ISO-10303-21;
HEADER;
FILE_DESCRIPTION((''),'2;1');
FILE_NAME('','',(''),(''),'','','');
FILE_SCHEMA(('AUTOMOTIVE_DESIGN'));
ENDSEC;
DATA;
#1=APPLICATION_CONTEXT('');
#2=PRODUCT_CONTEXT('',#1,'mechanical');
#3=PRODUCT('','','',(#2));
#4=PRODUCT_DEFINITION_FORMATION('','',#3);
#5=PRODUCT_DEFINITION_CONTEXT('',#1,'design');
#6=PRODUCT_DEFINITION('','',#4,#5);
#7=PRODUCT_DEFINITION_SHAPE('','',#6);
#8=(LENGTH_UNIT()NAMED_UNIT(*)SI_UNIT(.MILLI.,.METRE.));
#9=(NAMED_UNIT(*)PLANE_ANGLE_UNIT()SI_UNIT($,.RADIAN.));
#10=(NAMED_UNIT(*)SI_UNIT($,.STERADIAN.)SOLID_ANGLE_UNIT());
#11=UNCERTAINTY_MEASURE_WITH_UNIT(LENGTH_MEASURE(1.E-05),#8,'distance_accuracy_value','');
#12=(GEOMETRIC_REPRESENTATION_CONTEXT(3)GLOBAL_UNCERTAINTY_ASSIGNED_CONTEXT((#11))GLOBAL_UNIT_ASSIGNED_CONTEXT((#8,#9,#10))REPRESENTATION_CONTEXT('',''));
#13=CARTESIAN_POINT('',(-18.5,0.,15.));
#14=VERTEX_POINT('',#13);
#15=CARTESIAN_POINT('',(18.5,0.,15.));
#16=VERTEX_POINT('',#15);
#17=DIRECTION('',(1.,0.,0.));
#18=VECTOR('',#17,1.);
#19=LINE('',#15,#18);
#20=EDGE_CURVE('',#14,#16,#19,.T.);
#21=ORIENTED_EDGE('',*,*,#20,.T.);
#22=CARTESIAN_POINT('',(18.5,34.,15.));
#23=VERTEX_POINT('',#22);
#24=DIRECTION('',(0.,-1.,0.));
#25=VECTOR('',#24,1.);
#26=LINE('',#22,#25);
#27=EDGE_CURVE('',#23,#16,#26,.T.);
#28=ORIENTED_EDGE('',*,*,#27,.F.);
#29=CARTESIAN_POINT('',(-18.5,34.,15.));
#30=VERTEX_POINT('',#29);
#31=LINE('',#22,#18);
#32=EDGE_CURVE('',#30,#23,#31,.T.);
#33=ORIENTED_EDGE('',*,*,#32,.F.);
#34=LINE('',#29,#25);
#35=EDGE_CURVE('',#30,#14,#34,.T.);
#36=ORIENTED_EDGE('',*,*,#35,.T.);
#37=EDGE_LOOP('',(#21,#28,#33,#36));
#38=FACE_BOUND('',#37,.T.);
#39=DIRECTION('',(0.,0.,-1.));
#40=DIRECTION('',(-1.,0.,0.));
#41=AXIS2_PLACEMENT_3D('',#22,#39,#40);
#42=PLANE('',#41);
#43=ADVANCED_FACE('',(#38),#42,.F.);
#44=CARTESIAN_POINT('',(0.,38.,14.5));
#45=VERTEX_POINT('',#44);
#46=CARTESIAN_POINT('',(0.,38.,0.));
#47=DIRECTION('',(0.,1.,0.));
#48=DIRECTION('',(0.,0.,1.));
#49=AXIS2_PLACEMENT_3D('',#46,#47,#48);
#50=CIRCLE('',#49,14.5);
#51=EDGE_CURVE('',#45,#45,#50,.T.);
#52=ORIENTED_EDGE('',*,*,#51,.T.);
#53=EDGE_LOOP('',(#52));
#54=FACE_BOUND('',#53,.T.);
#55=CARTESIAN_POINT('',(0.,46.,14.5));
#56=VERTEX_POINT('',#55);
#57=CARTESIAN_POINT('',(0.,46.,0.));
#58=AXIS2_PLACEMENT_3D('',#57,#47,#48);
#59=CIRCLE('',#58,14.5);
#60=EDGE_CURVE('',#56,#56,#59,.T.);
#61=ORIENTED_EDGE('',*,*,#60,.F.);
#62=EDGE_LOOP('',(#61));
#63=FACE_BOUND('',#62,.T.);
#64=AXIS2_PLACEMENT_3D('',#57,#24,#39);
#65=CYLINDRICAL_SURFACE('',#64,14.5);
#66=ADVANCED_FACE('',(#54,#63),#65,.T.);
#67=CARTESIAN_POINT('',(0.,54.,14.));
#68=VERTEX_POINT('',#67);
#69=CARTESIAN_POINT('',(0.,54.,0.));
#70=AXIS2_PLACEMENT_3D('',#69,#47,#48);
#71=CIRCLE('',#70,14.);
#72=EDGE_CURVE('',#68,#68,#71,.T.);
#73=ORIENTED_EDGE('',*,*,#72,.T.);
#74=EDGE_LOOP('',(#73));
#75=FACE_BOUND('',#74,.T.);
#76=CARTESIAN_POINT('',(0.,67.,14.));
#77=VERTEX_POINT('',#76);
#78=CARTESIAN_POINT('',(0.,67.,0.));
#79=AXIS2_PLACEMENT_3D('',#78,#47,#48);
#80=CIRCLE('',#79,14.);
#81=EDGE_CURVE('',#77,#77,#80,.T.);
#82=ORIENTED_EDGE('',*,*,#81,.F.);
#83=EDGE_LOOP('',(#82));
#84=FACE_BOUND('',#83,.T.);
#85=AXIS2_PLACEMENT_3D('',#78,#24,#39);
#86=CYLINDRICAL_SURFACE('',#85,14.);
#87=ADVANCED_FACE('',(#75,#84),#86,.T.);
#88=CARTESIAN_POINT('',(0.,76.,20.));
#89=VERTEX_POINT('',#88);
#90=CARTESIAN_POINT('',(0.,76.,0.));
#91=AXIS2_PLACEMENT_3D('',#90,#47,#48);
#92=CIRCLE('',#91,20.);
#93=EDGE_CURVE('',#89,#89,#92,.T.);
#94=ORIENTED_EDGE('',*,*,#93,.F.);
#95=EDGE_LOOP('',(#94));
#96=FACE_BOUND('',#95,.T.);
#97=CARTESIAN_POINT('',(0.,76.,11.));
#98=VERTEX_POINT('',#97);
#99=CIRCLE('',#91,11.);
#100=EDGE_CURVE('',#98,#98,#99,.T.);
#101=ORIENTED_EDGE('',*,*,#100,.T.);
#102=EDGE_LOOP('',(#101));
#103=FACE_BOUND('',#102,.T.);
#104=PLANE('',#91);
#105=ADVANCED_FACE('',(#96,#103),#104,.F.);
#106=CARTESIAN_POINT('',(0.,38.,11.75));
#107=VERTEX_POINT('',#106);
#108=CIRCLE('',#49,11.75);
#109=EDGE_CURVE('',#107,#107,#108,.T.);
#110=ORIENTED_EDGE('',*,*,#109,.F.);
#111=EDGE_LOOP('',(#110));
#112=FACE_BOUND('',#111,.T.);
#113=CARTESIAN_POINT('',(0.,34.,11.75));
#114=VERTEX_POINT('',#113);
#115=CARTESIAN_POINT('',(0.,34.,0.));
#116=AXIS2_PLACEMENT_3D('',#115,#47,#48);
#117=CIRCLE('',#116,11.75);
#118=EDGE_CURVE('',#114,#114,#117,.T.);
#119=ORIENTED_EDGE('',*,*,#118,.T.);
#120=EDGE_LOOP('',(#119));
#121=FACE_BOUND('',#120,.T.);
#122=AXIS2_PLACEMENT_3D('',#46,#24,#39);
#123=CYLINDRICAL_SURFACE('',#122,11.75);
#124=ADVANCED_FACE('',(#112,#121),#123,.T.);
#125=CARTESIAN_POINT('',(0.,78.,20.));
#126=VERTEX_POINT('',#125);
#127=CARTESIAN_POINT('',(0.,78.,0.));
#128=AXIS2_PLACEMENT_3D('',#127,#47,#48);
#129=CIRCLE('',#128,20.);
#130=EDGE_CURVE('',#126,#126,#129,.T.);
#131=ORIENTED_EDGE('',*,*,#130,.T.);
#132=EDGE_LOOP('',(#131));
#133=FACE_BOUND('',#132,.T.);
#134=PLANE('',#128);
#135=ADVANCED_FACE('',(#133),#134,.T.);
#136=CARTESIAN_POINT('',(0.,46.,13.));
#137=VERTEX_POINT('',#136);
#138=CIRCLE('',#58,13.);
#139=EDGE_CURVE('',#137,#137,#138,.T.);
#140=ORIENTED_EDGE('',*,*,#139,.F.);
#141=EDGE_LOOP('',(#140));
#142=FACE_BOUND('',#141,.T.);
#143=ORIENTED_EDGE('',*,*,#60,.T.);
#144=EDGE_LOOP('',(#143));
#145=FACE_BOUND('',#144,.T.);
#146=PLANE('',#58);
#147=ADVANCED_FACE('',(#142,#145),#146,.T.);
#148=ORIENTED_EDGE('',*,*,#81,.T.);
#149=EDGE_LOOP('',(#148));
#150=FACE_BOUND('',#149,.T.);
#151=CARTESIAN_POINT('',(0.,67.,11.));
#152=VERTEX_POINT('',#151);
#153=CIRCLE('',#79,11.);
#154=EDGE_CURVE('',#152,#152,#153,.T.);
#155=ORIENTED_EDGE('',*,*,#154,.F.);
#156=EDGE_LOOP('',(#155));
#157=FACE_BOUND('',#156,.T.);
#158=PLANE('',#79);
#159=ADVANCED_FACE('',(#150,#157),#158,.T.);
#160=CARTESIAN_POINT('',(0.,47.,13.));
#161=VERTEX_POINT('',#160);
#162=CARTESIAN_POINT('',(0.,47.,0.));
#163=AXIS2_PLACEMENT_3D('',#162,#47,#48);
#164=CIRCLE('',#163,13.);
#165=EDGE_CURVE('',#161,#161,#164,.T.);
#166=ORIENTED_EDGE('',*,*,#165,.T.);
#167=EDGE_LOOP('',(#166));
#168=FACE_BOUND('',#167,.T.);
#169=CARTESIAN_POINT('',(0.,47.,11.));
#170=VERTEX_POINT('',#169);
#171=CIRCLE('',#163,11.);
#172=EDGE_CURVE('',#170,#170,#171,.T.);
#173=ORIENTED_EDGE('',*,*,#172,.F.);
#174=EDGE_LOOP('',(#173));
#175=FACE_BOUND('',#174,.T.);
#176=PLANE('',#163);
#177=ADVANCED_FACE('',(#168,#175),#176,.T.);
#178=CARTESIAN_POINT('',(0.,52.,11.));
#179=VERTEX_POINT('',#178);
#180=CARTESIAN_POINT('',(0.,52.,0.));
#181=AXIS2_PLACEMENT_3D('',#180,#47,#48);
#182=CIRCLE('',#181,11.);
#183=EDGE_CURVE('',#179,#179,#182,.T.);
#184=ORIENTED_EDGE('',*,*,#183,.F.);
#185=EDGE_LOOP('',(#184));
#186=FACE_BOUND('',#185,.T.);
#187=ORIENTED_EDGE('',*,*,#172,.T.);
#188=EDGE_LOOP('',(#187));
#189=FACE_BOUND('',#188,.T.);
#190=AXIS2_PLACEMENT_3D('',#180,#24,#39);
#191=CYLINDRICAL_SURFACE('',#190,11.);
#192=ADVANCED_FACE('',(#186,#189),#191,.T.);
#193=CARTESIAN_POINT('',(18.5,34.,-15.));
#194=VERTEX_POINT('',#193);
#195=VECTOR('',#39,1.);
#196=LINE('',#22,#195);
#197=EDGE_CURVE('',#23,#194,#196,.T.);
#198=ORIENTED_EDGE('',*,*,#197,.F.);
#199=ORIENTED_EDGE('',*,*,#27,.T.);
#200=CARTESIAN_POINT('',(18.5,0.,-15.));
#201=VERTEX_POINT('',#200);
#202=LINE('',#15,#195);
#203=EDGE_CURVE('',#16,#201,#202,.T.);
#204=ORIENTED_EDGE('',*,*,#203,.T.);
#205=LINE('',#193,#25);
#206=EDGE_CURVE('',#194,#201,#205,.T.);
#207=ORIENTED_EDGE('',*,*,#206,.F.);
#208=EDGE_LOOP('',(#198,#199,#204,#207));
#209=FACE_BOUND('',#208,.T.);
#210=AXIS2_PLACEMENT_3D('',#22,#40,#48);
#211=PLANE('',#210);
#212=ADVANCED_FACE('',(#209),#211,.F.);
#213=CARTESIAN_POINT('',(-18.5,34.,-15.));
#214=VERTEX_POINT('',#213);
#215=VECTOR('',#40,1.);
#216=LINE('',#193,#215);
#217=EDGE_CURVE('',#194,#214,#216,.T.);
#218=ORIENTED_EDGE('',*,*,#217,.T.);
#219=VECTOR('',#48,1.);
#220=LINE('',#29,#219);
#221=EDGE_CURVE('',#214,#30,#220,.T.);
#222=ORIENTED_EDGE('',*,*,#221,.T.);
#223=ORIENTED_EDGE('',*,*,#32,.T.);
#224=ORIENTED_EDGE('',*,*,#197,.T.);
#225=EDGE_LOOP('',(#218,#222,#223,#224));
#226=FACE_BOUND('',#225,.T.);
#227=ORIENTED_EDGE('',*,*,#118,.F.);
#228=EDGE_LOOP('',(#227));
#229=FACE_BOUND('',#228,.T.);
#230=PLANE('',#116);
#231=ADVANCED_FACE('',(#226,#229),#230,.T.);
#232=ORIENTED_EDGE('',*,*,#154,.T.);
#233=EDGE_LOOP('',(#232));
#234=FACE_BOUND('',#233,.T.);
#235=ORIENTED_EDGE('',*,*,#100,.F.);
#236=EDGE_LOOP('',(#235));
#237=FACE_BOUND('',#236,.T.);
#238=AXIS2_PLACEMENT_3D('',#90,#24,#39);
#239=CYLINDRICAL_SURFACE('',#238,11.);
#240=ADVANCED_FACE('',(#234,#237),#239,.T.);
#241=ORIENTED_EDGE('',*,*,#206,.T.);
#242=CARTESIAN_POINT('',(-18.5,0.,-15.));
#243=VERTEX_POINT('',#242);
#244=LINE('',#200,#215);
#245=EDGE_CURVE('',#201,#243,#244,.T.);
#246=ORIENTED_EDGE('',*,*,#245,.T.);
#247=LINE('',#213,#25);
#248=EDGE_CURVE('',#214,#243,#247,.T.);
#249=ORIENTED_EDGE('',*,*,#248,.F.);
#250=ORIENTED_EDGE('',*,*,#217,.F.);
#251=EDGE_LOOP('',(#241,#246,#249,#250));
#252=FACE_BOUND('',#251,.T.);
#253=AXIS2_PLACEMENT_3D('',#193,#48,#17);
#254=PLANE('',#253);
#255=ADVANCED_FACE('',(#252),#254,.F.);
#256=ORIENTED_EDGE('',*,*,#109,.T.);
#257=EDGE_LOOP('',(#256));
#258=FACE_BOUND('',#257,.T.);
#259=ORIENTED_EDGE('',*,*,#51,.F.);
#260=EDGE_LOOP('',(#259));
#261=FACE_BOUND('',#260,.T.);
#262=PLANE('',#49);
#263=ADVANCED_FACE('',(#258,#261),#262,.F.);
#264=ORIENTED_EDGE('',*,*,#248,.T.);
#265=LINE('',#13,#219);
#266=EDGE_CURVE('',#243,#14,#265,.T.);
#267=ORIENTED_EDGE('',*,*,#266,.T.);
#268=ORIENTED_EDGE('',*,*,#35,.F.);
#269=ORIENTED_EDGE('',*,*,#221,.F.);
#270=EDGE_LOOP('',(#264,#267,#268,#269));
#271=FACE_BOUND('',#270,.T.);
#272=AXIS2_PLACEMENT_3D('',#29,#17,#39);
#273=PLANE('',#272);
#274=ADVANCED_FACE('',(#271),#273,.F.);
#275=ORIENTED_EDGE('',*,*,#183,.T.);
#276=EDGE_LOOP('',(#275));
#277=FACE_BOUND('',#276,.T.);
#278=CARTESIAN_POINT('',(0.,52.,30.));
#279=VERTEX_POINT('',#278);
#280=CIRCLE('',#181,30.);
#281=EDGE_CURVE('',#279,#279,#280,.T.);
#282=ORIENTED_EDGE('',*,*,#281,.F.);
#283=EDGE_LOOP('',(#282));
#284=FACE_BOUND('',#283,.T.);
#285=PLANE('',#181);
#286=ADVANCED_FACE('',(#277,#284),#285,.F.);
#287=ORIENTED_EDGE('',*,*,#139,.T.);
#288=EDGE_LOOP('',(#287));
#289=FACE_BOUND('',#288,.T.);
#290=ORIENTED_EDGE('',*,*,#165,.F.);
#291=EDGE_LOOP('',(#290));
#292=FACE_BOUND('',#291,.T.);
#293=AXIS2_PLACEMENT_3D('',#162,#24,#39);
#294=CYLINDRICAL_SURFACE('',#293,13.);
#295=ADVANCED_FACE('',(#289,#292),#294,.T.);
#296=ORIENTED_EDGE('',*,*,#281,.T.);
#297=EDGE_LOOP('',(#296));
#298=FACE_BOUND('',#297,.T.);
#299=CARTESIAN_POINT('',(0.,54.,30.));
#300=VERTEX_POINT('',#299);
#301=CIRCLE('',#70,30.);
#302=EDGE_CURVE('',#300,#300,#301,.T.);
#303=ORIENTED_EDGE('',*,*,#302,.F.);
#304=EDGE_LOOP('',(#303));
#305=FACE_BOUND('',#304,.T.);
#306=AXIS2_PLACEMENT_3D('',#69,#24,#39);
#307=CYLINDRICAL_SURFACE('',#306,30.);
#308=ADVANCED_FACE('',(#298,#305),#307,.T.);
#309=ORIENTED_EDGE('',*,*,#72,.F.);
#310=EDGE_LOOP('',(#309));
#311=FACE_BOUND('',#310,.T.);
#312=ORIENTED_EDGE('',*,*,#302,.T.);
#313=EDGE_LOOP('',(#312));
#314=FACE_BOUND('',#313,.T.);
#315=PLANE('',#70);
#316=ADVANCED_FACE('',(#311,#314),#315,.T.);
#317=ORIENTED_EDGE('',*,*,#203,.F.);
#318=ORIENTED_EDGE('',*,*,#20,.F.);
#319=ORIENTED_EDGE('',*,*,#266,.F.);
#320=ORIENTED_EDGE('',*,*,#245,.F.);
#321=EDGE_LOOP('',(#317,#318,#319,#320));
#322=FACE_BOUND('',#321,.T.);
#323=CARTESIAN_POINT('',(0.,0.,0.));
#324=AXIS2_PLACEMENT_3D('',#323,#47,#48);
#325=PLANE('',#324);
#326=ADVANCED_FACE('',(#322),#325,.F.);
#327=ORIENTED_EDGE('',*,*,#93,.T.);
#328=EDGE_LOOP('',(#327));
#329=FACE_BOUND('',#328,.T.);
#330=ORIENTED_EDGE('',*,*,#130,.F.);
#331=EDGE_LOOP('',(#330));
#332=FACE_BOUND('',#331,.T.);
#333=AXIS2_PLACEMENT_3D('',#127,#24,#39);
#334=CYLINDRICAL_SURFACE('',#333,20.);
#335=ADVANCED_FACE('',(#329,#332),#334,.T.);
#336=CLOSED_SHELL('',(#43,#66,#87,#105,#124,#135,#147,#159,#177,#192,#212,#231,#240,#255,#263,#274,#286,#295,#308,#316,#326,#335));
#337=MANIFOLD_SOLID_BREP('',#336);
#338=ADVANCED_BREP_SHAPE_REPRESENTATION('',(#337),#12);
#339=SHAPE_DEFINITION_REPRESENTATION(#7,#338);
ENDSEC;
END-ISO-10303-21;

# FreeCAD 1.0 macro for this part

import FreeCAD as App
import Part
import Sketcher
from FreeCAD import Vector

doc = App.newDocument("Part")
params = doc.addObject("Spreadsheet::Sheet", "Params")
for row, (alias, value) in enumerate([
    ("sketch1_width", "37 mm"),
    ("sketch1_height", "30 mm"),
    ("pad1_length", "34 mm"),
    ("sketch2_diameter", "23.5 mm"),
    ("pad2_length", "4 mm"),
    ("sketch3_diameter", "29 mm"),
    ("pad3_length", "8 mm"),
    ("sketch4_diameter", "26 mm"),
    ("pad4_length", "1 mm"),
    ("sketch5_diameter", "22 mm"),
    ("pad5_length", "5 mm"),
    ("sketch6_diameter", "60 mm"),
    ("pad6_length", "2 mm"),
    ("sketch7_diameter", "28 mm"),
    ("pad7_length", "13 mm"),
    ("sketch8_diameter", "22 mm"),
    ("pad8_length", "9 mm"),
    ("sketch9_diameter", "40 mm"),
    ("pad9_length", "2 mm"),
], start=1):
    params.set(f"A{row}", alias)
    params.set(f"B{row}", "=" + value)
    params.setAlias(f"B{row}", alias)

body = doc.addObject("PartDesign::Body", "Body")

# Sketch on XZ plane
sketch1 = body.newObject("Sketcher::SketchObject", "Sketch")
sketch1.AttachmentSupport = (doc.getObject("XZ_Plane"), [""])
sketch1.MapMode = "FlatFace"
sketch1.addGeometry([
    Part.LineSegment(Vector(-18, -15, 0), Vector(-18, 15, 0)),
    Part.LineSegment(Vector(-18, 15, 0), Vector(18, 15, 0)),
    Part.LineSegment(Vector(18, 15, 0), Vector(18, -15, 0)),
    Part.LineSegment(Vector(18, -15, 0), Vector(-18, -15, 0)),
], False)
sketch1.addConstraint([
    Sketcher.Constraint("Coincident", 0, 2, 1, 1),
    Sketcher.Constraint("Coincident", 1, 2, 2, 1),
    Sketcher.Constraint("Coincident", 2, 2, 3, 1),
    Sketcher.Constraint("Coincident", 3, 2, 0, 1),
    Sketcher.Constraint("Vertical", 0),
    Sketcher.Constraint("Horizontal", 1),
    Sketcher.Constraint("Vertical", 2),
    Sketcher.Constraint("Horizontal", 3),
    Sketcher.Constraint("Symmetric", 0, 2, 2, 2, -1, 1),
    Sketcher.Constraint("DistanceX", 1, 1, 1, 2, 37.0),
    Sketcher.Constraint("DistanceY", 0, 1, 0, 2, 30.0),
])
sketch1.setExpression("Constraints[9]", "Params.sketch1_width")
sketch1.setExpression("Constraints[10]", "Params.sketch1_height")
pad1 = body.newObject("PartDesign::Pad", "Pad")
pad1.Profile = sketch1
pad1.setExpression("Length", "Params.pad1_length")
pad1.Reversed = True

# Sketch on XZ plane
sketch2 = body.newObject("Sketcher::SketchObject", "Sketch001")
sketch2.AttachmentSupport = (doc.getObject("XZ_Plane"), [""])
sketch2.MapMode = "FlatFace"
sketch2.AttachmentOffset = App.Placement(Vector(0, 0, -34), App.Rotation())
sketch2.addGeometry(Part.Circle(Vector(0, 0, 0), Vector(0, 0, 1), 12), False)
sketch2.addConstraint([
    Sketcher.Constraint("Coincident", 0, 3, -1, 1),
    Sketcher.Constraint("Diameter", 0, 23.5),
])
sketch2.setExpression("Constraints[1]", "Params.sketch2_diameter")
pad2 = body.newObject("PartDesign::Pad", "Pad001")
pad2.Profile = sketch2
pad2.setExpression("Length", "Params.pad2_length")
pad2.Reversed = True

# Sketch on XZ plane
sketch3 = body.newObject("Sketcher::SketchObject", "Sketch002")
sketch3.AttachmentSupport = (doc.getObject("XZ_Plane"), [""])
sketch3.MapMode = "FlatFace"
sketch3.AttachmentOffset = App.Placement(Vector(0, 0, -38), App.Rotation())
sketch3.addGeometry(Part.Circle(Vector(0, 0, 0), Vector(0, 0, 1), 14), False)
sketch3.addConstraint([
    Sketcher.Constraint("Coincident", 0, 3, -1, 1),
    Sketcher.Constraint("Diameter", 0, 29.0),
])
sketch3.setExpression("Constraints[1]", "Params.sketch3_diameter")
pad3 = body.newObject("PartDesign::Pad", "Pad002")
pad3.Profile = sketch3
pad3.setExpression("Length", "Params.pad3_length")
pad3.Reversed = True

# Sketch on XZ plane
sketch4 = body.newObject("Sketcher::SketchObject", "Sketch003")
sketch4.AttachmentSupport = (doc.getObject("XZ_Plane"), [""])
sketch4.MapMode = "FlatFace"
sketch4.AttachmentOffset = App.Placement(Vector(0, 0, -46), App.Rotation())
sketch4.addGeometry(Part.Circle(Vector(0, 0, 0), Vector(0, 0, 1), 13), False)
sketch4.addConstraint([
    Sketcher.Constraint("Coincident", 0, 3, -1, 1),
    Sketcher.Constraint("Diameter", 0, 26.0),
])
sketch4.setExpression("Constraints[1]", "Params.sketch4_diameter")
pad4 = body.newObject("PartDesign::Pad", "Pad003")
pad4.Profile = sketch4
pad4.setExpression("Length", "Params.pad4_length")
pad4.Reversed = True

# Sketch on XZ plane
sketch5 = body.newObject("Sketcher::SketchObject", "Sketch004")
sketch5.AttachmentSupport = (doc.getObject("XZ_Plane"), [""])
sketch5.MapMode = "FlatFace"
sketch5.AttachmentOffset = App.Placement(Vector(0, 0, -47), App.Rotation())
sketch5.addGeometry(Part.Circle(Vector(0, 0, 0), Vector(0, 0, 1), 11), False)
sketch5.addConstraint([
    Sketcher.Constraint("Coincident", 0, 3, -1, 1),
    Sketcher.Constraint("Diameter", 0, 22.0),
])
sketch5.setExpression("Constraints[1]", "Params.sketch5_diameter")
pad5 = body.newObject("PartDesign::Pad", "Pad004")
pad5.Profile = sketch5
pad5.setExpression("Length", "Params.pad5_length")
pad5.Reversed = True

# Sketch on XZ plane
sketch6 = body.newObject("Sketcher::SketchObject", "Sketch005")
sketch6.AttachmentSupport = (doc.getObject("XZ_Plane"), [""])
sketch6.MapMode = "FlatFace"
sketch6.AttachmentOffset = App.Placement(Vector(0, 0, -52), App.Rotation())
sketch6.addGeometry(Part.Circle(Vector(0, 0, 0), Vector(0, 0, 1), 30), False)
sketch6.addConstraint([
    Sketcher.Constraint("Coincident", 0, 3, -1, 1),
    Sketcher.Constraint("Diameter", 0, 60.0),
])
sketch6.setExpression("Constraints[1]", "Params.sketch6_diameter")
pad6 = body.newObject("PartDesign::Pad", "Pad005")
pad6.Profile = sketch6
pad6.setExpression("Length", "Params.pad6_length")
pad6.Reversed = True

# Sketch on XZ plane
sketch7 = body.newObject("Sketcher::SketchObject", "Sketch006")
sketch7.AttachmentSupport = (doc.getObject("XZ_Plane"), [""])
sketch7.MapMode = "FlatFace"
sketch7.AttachmentOffset = App.Placement(Vector(0, 0, -54), App.Rotation())
sketch7.addGeometry(Part.Circle(Vector(0, 0, 0), Vector(0, 0, 1), 14), False)
sketch7.addConstraint([
    Sketcher.Constraint("Coincident", 0, 3, -1, 1),
    Sketcher.Constraint("Diameter", 0, 28.0),
])
sketch7.setExpression("Constraints[1]", "Params.sketch7_diameter")
pad7 = body.newObject("PartDesign::Pad", "Pad006")
pad7.Profile = sketch7
pad7.setExpression("Length", "Params.pad7_length")
pad7.Reversed = True

# Sketch on XZ plane
sketch8 = body.newObject("Sketcher::SketchObject", "Sketch007")
sketch8.AttachmentSupport = (doc.getObject("XZ_Plane"), [""])
sketch8.MapMode = "FlatFace"
sketch8.AttachmentOffset = App.Placement(Vector(0, 0, -67), App.Rotation())
sketch8.addGeometry(Part.Circle(Vector(0, 0, 0), Vector(0, 0, 1), 11), False)
sketch8.addConstraint([
    Sketcher.Constraint("Coincident", 0, 3, -1, 1),
    Sketcher.Constraint("Diameter", 0, 22.0),
])
sketch8.setExpression("Constraints[1]", "Params.sketch8_diameter")
pad8 = body.newObject("PartDesign::Pad", "Pad007")
pad8.Profile = sketch8
pad8.setExpression("Length", "Params.pad8_length")
pad8.Reversed = True

# Sketch on XZ plane
sketch9 = body.newObject("Sketcher::SketchObject", "Sketch008")
sketch9.AttachmentSupport = (doc.getObject("XZ_Plane"), [""])
sketch9.MapMode = "FlatFace"
sketch9.AttachmentOffset = App.Placement(Vector(0, 0, -76), App.Rotation())
sketch9.addGeometry(Part.Circle(Vector(0, 0, 0), Vector(0, 0, 1), 20), False)
sketch9.addConstraint([
    Sketcher.Constraint("Coincident", 0, 3, -1, 1),
    Sketcher.Constraint("Diameter", 0, 40.0),
])
sketch9.setExpression("Constraints[1]", "Params.sketch9_diameter")
pad9 = body.newObject("PartDesign::Pad", "Pad008")
pad9.Profile = sketch9
pad9.setExpression("Length", "Params.pad9_length")
pad9.Reversed = True

doc.recompute()
